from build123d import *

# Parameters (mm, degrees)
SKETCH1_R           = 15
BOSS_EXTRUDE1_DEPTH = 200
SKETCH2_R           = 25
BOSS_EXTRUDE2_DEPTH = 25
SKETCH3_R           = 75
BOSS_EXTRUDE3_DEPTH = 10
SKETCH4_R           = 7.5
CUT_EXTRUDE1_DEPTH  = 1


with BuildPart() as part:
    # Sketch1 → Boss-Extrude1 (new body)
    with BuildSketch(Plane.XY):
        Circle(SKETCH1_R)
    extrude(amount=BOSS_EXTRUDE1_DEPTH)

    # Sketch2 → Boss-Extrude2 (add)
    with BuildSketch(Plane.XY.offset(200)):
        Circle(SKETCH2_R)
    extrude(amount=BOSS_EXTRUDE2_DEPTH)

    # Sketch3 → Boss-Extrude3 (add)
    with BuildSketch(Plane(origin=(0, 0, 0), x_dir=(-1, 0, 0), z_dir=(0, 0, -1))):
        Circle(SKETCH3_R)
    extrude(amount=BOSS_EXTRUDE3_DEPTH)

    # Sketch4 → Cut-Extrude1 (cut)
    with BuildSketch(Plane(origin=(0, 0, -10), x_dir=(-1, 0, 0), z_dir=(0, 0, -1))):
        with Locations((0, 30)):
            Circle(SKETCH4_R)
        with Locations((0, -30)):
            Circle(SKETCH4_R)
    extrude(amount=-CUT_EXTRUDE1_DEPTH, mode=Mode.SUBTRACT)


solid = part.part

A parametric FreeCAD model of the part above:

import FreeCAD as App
import Part
import Sketcher
from FreeCAD import Vector

doc = App.newDocument("Part")
body = doc.addObject("PartDesign::Body", "Body")

sketch1 = body.newObject("Sketcher::SketchObject", "Sketch")
sketch1.AttachmentSupport = (doc.getObject("XY_Plane"), [""])
sketch1.MapMode = "FlatFace"
sketch1.addGeometry(Part.Circle(Vector(0, 0, 0), Vector(0, 0, 1), 15), False)
sketch1.addConstraint(Sketcher.Constraint("Coincident", 0, 3, -1, 1))
sketch1.addConstraint(Sketcher.Constraint("Diameter", 0, 30.0))
pad1 = body.newObject("PartDesign::Pad", "Pad")
pad1.Profile = sketch1
pad1.Length = 200

sketch2 = body.newObject("Sketcher::SketchObject", "Sketch001")
sketch2.AttachmentSupport = (doc.getObject("XY_Plane"), [""])
sketch2.MapMode = "FlatFace"
sketch2.AttachmentOffset = App.Placement(Vector(0, 0, 200), App.Rotation())
sketch2.addGeometry(Part.Circle(Vector(0, 0, 0), Vector(0, 0, 1), 25), False)
sketch2.addConstraint(Sketcher.Constraint("Coincident", 0, 3, -1, 1))
sketch2.addConstraint(Sketcher.Constraint("Diameter", 0, 50.0))
pad2 = body.newObject("PartDesign::Pad", "Pad001")
pad2.Profile = sketch2
pad2.Length = 25

sketch3 = body.newObject("Sketcher::SketchObject", "Sketch002")
sketch3.AttachmentSupport = (doc.getObject("XY_Plane"), [""])
sketch3.MapMode = "FlatFace"
sketch3.addGeometry(Part.Circle(Vector(0, 0, 0), Vector(0, 0, 1), 75), False)
sketch3.addConstraint(Sketcher.Constraint("Coincident", 0, 3, -1, 1))
sketch3.addConstraint(Sketcher.Constraint("Diameter", 0, 150.0))
pad3 = body.newObject("PartDesign::Pad", "Pad002")
pad3.Profile = sketch3
pad3.Length = 10
pad3.Reversed = True

sketch4 = body.newObject("Sketcher::SketchObject", "Sketch003")
sketch4.AttachmentSupport = (doc.getObject("XY_Plane"), [""])
sketch4.MapMode = "FlatFace"
sketch4.AttachmentOffset = App.Placement(Vector(0, 0, -10), App.Rotation())
sketch4.addGeometry(Part.Circle(Vector(0, 30, 0), Vector(0, 0, 1), 8), False)
sketch4.addGeometry(Part.Circle(Vector(0, -30, 0), Vector(0, 0, 1), 8), False)
sketch4.addConstraint(Sketcher.Constraint("Equal", 0, 1))
sketch4.addConstraint(Sketcher.Constraint("Symmetric", 0, 3, 1, 3, -1, 1))
sketch4.addConstraint(Sketcher.Constraint("PointOnObject", 0, 3, -2))
sketch4.addConstraint(Sketcher.Constraint("Diameter", 0, 15.0))
sketch4.addConstraint(Sketcher.Constraint("DistanceY", -1, 1, 0, 3, 30.0))
pocket1 = body.newObject("PartDesign::Pocket", "Pocket")
pocket1.Profile = sketch4
pocket1.Length = 1
pocket1.Reversed = True

doc.recompute()
